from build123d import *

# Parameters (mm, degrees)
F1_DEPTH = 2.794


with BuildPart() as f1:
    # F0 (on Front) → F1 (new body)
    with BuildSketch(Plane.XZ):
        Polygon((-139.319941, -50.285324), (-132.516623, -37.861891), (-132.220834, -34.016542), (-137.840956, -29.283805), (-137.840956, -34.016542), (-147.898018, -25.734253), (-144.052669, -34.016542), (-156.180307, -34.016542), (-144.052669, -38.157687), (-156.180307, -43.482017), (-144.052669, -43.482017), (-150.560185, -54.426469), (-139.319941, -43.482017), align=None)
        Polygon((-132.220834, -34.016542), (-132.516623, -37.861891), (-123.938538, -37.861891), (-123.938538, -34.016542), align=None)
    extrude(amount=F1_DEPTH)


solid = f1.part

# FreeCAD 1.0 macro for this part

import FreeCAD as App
import Part
import Sketcher
from FreeCAD import Vector
Q = App.Units.Quantity

doc = App.newDocument("Part")
body = doc.addObject("PartDesign::Body", "Body")

# Sketch on XZ plane
sketch1 = body.newObject("Sketcher::SketchObject", "Sketch")
sketch1.AttachmentSupport = (doc.getObject("XZ_Plane"), [""])
sketch1.MapMode = "FlatFace"
sketch1.addGeometry([
    Part.LineSegment(Vector(-139.3, -50.3, 0), Vector(-132.5, -37.9, 0)),  # 0
    Part.LineSegment(Vector(-132.5, -37.9, 0), Vector(-123.9, -37.9, 0)),  # 1
    Part.LineSegment(Vector(-123.9, -37.9, 0), Vector(-123.9, -34, 0)),  # 2
    Part.LineSegment(Vector(-123.9, -34, 0), Vector(-132.2, -34, 0)),  # 3
    Part.LineSegment(Vector(-132.2, -34, 0), Vector(-137.8, -29.3, 0)),  # 4
    Part.LineSegment(Vector(-137.8, -29.3, 0), Vector(-137.8, -34, 0)),  # 5
    Part.LineSegment(Vector(-137.8, -34, 0), Vector(-147.9, -25.7, 0)),  # 6
    Part.LineSegment(Vector(-147.9, -25.7, 0), Vector(-144.1, -34, 0)),  # 7
    Part.LineSegment(Vector(-144.1, -34, 0), Vector(-156.2, -34, 0)),  # 8
    Part.LineSegment(Vector(-156.2, -34, 0), Vector(-144.1, -38.2, 0)),  # 9
    Part.LineSegment(Vector(-144.1, -38.2, 0), Vector(-156.2, -43.5, 0)),  # 10
    Part.LineSegment(Vector(-156.2, -43.5, 0), Vector(-144.1, -43.5, 0)),  # 11
    Part.LineSegment(Vector(-144.1, -43.5, 0), Vector(-150.6, -54.4, 0)),  # 12
    Part.LineSegment(Vector(-150.6, -54.4, 0), Vector(-139.3, -43.5, 0)),  # 13
    Part.LineSegment(Vector(-139.3, -43.5, 0), Vector(-139.3, -50.3, 0)),  # 14
], False)
sketch1.addConstraint([
    Sketcher.Constraint("Coincident", 0, 2, 1, 1),
    Sketcher.Constraint("Coincident", 1, 2, 2, 1),
    Sketcher.Constraint("Coincident", 2, 2, 3, 1),
    Sketcher.Constraint("Coincident", 3, 2, 4, 1),
    Sketcher.Constraint("Coincident", 4, 2, 5, 1),
    Sketcher.Constraint("Coincident", 5, 2, 6, 1),
    Sketcher.Constraint("Coincident", 6, 2, 7, 1),
    Sketcher.Constraint("Coincident", 7, 2, 8, 1),
    Sketcher.Constraint("Coincident", 8, 2, 9, 1),
    Sketcher.Constraint("Coincident", 9, 2, 10, 1),
    Sketcher.Constraint("Coincident", 10, 2, 11, 1),
    Sketcher.Constraint("Coincident", 11, 2, 12, 1),
    Sketcher.Constraint("Coincident", 12, 2, 13, 1),
    Sketcher.Constraint("Coincident", 13, 2, 14, 1),
    Sketcher.Constraint("Coincident", 14, 2, 0, 1),
    Sketcher.Constraint("Horizontal", 1),
    Sketcher.Constraint("Vertical", 2),
    Sketcher.Constraint("Horizontal", 3),
    Sketcher.Constraint("Vertical", 5),
    Sketcher.Constraint("Horizontal", 8),
    Sketcher.Constraint("Horizontal", 11),
    Sketcher.Constraint("Vertical", 14),
    Sketcher.Constraint("Horizontal", 3, 2, 5, 2),
    Sketcher.Constraint("Horizontal", 5, 2, 7, 2),
    Sketcher.Constraint("Horizontal", 11, 2, 13, 2),
    Sketcher.Constraint("Vertical", 7, 2, 9, 2),
    Sketcher.Constraint("Vertical", 8, 2, 10, 2),
    Sketcher.Constraint("Vertical", 9, 2, 11, 2),
    Sketcher.Constraint("DistanceY", 2, 1, 2, 2, 3.845349),
    Sketcher.Constraint("Distance", 0, 14.16428),
    Sketcher.Constraint("Distance", 4, 7.347419),
    Sketcher.Constraint("Distance", 6, 13.028461),
    Sketcher.Constraint("Distance", 7, 9.13143),
    Sketcher.Constraint("Distance", 12, 12.732981),
    Sketcher.Constraint("DistanceX", 1, 1, 1, 2, 8.578085),
    Sketcher.Constraint("DistanceX", 3, 2, 3, 1, 8.282296),
    Sketcher.Constraint("DistanceX", 8, 2, 8, 1, 12.127638),
    Sketcher.Constraint("DistanceY", 5, 2, 5, 1, 4.732737),
    Sketcher.Constraint("DistanceY", 14, 2, 14, 1, 6.803307),
    Sketcher.Constraint("DistanceY", 0, 2, -1, 1, 37.861891),
    Sketcher.Constraint("DistanceX", 6, 2, -1, 1, 147.898018),
    Sketcher.Constraint("DistanceX", 7, 2, -1, 1, 144.052669),
    Sketcher.Constraint("DistanceY", 12, 2, -1, 1, 54.426469),
    Sketcher.Constraint("DistanceX", 13, 2, -1, 1, 139.319941),
    Sketcher.Constraint("DistanceY", 10, 2, 9, 2, 5.32433),
])
pad1 = body.newObject("PartDesign::Pad", "Pad")
pad1.Profile = sketch1
pad1.Length = Q("0.11 in")

doc.recompute()
